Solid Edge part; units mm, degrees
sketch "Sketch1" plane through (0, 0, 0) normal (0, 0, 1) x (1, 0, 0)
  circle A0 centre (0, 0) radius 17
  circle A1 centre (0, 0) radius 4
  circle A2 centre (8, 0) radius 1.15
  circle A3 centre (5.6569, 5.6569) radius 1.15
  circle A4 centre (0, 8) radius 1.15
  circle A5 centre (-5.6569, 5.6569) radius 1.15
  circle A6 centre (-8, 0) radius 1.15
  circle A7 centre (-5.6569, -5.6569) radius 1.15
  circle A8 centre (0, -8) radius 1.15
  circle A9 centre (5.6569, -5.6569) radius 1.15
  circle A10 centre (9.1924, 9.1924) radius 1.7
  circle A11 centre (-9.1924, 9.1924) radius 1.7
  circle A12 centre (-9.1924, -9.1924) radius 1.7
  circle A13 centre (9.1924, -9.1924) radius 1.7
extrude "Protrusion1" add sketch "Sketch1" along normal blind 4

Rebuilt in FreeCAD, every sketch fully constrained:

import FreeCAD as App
import Part
import Sketcher
from FreeCAD import Vector

doc = App.newDocument("Part")
params = doc.addObject("Spreadsheet::Sheet", "Params")
for row, (alias, value) in enumerate([
    ("sketch1_diameter", "34 mm"),
    ("sketch1_diameter2", "8 mm"),
    ("sketch1_diameter3", "3.4 mm"),
    ("sketch1_diameter4", "2.3 mm"),
    ("pad1_length", "4 mm"),
], start=1):
    params.set(f"A{row}", alias)
    params.set(f"B{row}", "=" + value)
    params.setAlias(f"B{row}", alias)

body = doc.addObject("PartDesign::Body", "Body")

# Sketch on XY plane
sketch1 = body.newObject("Sketcher::SketchObject", "Sketch")
sketch1.AttachmentSupport = (doc.getObject("XY_Plane"), [""])
sketch1.MapMode = "FlatFace"
sketch1.addGeometry([
    Part.Circle(Vector(0, 0, 0), Vector(0, 0, 1), 17),  # 0
    Part.Circle(Vector(-9.2, -9.2, 0), Vector(0, 0, 1), 1.7),  # 1
    Part.Circle(Vector(-5.7, -5.7, 0), Vector(0, 0, 1), 1.1),  # 2
    Part.Circle(Vector(9.2, -9.2, 0), Vector(0, 0, 1), 1.7),  # 3
    Part.Circle(Vector(0, -8, 0), Vector(0, 0, 1), 1.1),  # 4
    Part.Circle(Vector(5.7, -5.7, 0), Vector(0, 0, 1), 1.1),  # 5
    Part.Circle(Vector(-8, 0, 0), Vector(0, 0, 1), 1.1),  # 6
    Part.Circle(Vector(-5.7, 5.7, 0), Vector(0, 0, 1), 1.1),  # 7
    Part.Circle(Vector(-9.2, 9.2, 0), Vector(0, 0, 1), 1.7),  # 8
    Part.Circle(Vector(0, 0, 0), Vector(0, 0, 1), 4),  # 9
    Part.Circle(Vector(8, 0, 0), Vector(0, 0, 1), 1.1),  # 10
    Part.Circle(Vector(0, 8, 0), Vector(0, 0, 1), 1.1),  # 11
    Part.Circle(Vector(5.7, 5.7, 0), Vector(0, 0, 1), 1.1),  # 12
    Part.Circle(Vector(9.2, 9.2, 0), Vector(0, 0, 1), 1.7),  # 13
], False)
sketch1.addConstraint([
    Sketcher.Constraint("Coincident", 0, 3, -1, 1),
    Sketcher.Constraint("Coincident", 9, 3, -1, 1),
    Sketcher.Constraint("Equal", 1, 3),
    Sketcher.Constraint("Equal", 2, 4),
    Sketcher.Constraint("Equal", 4, 5),
    Sketcher.Constraint("Equal", 5, 6),
    Sketcher.Constraint("Equal", 6, 7),
    Sketcher.Constraint("Equal", 3, 8),
    Sketcher.Constraint("Equal", 7, 10),
    Sketcher.Constraint("Equal", 10, 11),
    Sketcher.Constraint("Equal", 11, 12),
    Sketcher.Constraint("Equal", 8, 13),
    Sketcher.Constraint("Symmetric", 5, 3, 7, 3, -1, 1),
    Sketcher.Constraint("Symmetric", 3, 3, 8, 3, -1, 1),
    Sketcher.Constraint("Symmetric", 6, 3, 10, 3, -1, 1),
    Sketcher.Constraint("Symmetric", 4, 3, 11, 3, -1, 1),
    Sketcher.Constraint("Symmetric", 2, 3, 12, 3, -1, 1),
    Sketcher.Constraint("Symmetric", 1, 3, 13, 3, -1, 1),
    Sketcher.Constraint("Symmetric", 1, 3, 3, 3, -2),
    Sketcher.Constraint("Symmetric", 2, 3, 5, 3, -2),
    Sketcher.Constraint("PointOnObject", 4, 3, -2),
    Sketcher.Constraint("PointOnObject", 6, 3, -1),
    Sketcher.Constraint("Diameter", 0, 34.0),
    Sketcher.Constraint("Diameter", 9, 8.0),
    Sketcher.Constraint("Diameter", 1, 3.4),
    Sketcher.Constraint("Diameter", 2, 2.3),
    Sketcher.Constraint("DistanceY", 4, 3, -1, 1, 8.0),
    Sketcher.Constraint("DistanceX", 6, 3, -1, 1, 8.0),
    Sketcher.Constraint("DistanceX", 2, 3, -1, 1, 5.657),
    Sketcher.Constraint("DistanceY", 2, 3, -1, 1, 5.657),
    Sketcher.Constraint("DistanceX", 1, 3, -1, 1, 9.1924),
    Sketcher.Constraint("DistanceY", 1, 3, -1, 1, 9.1924),
])
sketch1.setExpression("Constraints[22]", "Params.sketch1_diameter")
sketch1.setExpression("Constraints[23]", "Params.sketch1_diameter2")
sketch1.setExpression("Constraints[24]", "Params.sketch1_diameter3")
sketch1.setExpression("Constraints[25]", "Params.sketch1_diameter4")
pad1 = body.newObject("PartDesign::Pad", "Pad")
pad1.Profile = sketch1
pad1.setExpression("Length", "Params.pad1_length")

doc.recompute()
